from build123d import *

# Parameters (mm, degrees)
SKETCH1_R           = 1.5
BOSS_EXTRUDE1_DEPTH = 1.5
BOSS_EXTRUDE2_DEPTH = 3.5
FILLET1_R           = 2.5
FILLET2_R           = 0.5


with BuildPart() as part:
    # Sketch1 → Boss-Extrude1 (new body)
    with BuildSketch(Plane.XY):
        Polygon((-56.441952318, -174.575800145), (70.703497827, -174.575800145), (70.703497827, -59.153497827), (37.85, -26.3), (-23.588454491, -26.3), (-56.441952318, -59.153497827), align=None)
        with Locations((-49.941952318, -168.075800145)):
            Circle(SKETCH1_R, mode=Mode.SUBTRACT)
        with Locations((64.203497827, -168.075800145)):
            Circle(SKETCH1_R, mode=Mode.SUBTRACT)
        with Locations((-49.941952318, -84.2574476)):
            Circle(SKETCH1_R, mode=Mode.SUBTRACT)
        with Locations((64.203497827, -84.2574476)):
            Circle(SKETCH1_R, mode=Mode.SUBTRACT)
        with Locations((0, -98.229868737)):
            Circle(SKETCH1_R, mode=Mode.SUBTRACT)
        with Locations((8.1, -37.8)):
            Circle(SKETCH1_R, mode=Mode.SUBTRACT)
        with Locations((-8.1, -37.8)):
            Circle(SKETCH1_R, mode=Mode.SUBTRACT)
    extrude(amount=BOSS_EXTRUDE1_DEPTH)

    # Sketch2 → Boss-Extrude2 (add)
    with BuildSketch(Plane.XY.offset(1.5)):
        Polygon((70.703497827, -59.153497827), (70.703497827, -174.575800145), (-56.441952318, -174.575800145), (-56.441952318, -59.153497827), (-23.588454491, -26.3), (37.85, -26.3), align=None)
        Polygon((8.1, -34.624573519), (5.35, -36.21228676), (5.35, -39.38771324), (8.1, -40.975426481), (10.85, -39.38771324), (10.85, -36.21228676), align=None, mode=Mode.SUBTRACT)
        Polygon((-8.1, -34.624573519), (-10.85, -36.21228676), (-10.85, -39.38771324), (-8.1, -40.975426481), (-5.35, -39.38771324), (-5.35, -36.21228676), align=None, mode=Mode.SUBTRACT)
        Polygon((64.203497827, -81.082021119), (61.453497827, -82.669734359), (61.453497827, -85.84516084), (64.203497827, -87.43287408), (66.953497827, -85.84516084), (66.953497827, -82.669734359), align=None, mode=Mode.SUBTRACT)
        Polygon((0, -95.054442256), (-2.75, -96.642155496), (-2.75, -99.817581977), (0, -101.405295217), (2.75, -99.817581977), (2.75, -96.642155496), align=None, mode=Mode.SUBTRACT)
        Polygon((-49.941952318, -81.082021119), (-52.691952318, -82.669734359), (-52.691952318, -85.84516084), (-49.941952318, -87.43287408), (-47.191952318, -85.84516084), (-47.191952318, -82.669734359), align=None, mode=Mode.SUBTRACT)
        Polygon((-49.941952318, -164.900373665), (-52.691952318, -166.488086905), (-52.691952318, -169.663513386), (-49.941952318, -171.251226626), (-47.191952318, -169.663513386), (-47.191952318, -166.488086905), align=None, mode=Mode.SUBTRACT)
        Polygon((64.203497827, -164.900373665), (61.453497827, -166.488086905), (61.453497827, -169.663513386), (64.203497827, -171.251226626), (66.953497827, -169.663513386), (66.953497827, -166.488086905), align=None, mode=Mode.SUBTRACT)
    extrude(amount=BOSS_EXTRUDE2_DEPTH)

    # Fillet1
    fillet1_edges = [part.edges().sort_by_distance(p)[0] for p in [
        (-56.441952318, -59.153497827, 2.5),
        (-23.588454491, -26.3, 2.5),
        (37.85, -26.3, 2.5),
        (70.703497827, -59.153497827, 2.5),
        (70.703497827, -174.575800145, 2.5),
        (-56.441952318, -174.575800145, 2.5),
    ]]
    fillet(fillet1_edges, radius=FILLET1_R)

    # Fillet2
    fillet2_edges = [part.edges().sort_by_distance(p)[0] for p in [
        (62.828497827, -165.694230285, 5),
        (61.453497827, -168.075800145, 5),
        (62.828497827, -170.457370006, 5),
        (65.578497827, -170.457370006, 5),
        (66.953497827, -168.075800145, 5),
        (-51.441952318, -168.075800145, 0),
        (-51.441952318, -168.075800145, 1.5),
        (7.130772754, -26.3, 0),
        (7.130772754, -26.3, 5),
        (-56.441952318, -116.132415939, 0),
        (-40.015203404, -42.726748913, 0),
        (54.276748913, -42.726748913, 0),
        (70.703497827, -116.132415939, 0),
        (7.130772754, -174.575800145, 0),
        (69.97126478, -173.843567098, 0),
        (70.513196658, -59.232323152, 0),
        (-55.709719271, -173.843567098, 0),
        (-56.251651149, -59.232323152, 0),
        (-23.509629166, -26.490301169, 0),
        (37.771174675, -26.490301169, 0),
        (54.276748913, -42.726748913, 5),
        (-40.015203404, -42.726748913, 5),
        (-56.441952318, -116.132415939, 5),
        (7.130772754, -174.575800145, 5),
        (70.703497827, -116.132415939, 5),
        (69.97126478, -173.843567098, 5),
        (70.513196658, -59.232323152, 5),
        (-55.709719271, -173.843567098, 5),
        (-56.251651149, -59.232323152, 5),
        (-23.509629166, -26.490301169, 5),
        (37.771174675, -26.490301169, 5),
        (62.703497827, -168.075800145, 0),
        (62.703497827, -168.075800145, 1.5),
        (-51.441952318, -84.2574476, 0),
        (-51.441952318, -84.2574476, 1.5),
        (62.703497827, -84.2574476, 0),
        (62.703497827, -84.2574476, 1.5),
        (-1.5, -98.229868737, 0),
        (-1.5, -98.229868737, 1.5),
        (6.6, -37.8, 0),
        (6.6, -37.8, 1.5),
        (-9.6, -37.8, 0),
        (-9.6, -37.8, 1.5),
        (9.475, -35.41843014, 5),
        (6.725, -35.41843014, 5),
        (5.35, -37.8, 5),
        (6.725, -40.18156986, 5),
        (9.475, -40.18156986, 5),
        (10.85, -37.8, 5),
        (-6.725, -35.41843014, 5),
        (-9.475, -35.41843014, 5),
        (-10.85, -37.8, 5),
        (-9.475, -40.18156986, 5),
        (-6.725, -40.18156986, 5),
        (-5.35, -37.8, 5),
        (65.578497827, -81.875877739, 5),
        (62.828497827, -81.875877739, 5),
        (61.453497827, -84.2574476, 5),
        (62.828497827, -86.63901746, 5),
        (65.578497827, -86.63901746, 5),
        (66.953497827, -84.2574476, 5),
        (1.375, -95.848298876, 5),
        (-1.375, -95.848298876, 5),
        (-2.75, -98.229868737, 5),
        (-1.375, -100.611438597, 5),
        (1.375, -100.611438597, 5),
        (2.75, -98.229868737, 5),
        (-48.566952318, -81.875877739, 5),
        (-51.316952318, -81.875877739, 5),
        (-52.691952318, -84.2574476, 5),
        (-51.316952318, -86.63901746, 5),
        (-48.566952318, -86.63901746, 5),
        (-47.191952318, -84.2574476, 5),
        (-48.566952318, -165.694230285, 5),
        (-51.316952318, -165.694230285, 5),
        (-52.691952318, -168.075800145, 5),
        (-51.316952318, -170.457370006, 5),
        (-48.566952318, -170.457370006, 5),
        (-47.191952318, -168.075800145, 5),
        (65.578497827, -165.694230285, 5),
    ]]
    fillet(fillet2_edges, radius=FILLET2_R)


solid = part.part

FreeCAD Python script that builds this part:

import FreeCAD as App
import Part
import Sketcher
from FreeCAD import Vector
Q = App.Units.Quantity


def edges_at(feature, points):
    """Names of the edges that pass closest to the given points."""
    edges = feature.Shape.Edges
    near = lambda p: min(range(len(edges)), key=lambda i: edges[i].distToShape(Part.Vertex(*p))[0])
    return sorted({f"Edge{near(p) + 1}" for p in points})

doc = App.newDocument("Part")
body = doc.addObject("PartDesign::Body", "Body")

sketch1 = body.newObject("Sketcher::SketchObject", "Sketch")
sketch1.AttachmentSupport = (doc.getObject("XY_Plane"), [""])
sketch1.MapMode = "FlatFace"
sketch1.addGeometry(Part.LineSegment(Vector(-56.4, -174.6, 0), Vector(70.7, -174.6, 0)), False)
sketch1.addGeometry(Part.LineSegment(Vector(70.7, -174.6, 0), Vector(70.7, -59.2, 0)), False)
sketch1.addGeometry(Part.LineSegment(Vector(70.7, -59.2, 0), Vector(37.9, -26.3, 0)), False)
sketch1.addGeometry(Part.LineSegment(Vector(37.9, -26.3, 0), Vector(-23.6, -26.3, 0)), False)
sketch1.addGeometry(Part.LineSegment(Vector(-23.6, -26.3, 0), Vector(-56.4, -59.2, 0)), False)
sketch1.addGeometry(Part.LineSegment(Vector(-56.4, -59.2, 0), Vector(-56.4, -174.6, 0)), False)
sketch1.addGeometry(Part.Circle(Vector(-49.9, -168.1, 0), Vector(0, 0, 1), 1.5), False)
sketch1.addGeometry(Part.Circle(Vector(64.2, -168.1, 0), Vector(0, 0, 1), 1.5), False)
sketch1.addGeometry(Part.Circle(Vector(-49.9, -84.3, 0), Vector(0, 0, 1), 1.5), False)
sketch1.addGeometry(Part.Circle(Vector(0, -98.2, 0), Vector(0, 0, 1), 1.5), False)
sketch1.addGeometry(Part.Circle(Vector(-8.1, -37.8, 0), Vector(0, 0, 1), 1.5), False)
sketch1.addGeometry(Part.Circle(Vector(64.2, -84.3, 0), Vector(0, 0, 1), 1.5), False)
sketch1.addGeometry(Part.Circle(Vector(8.1, -37.8, 0), Vector(0, 0, 1), 1.5), False)
sketch1.addConstraint(Sketcher.Constraint("Coincident", 0, 2, 1, 1))
sketch1.addConstraint(Sketcher.Constraint("Coincident", 1, 2, 2, 1))
sketch1.addConstraint(Sketcher.Constraint("Coincident", 2, 2, 3, 1))
sketch1.addConstraint(Sketcher.Constraint("Coincident", 3, 2, 4, 1))
sketch1.addConstraint(Sketcher.Constraint("Coincident", 4, 2, 5, 1))
sketch1.addConstraint(Sketcher.Constraint("Coincident", 5, 2, 0, 1))
sketch1.addConstraint(Sketcher.Constraint("Horizontal", 0))
sketch1.addConstraint(Sketcher.Constraint("Vertical", 1))
sketch1.addConstraint(Sketcher.Constraint("Horizontal", 3))
sketch1.addConstraint(Sketcher.Constraint("Vertical", 5))
sketch1.addConstraint(Sketcher.Constraint("Equal", 6, 7))
sketch1.addConstraint(Sketcher.Constraint("Equal", 7, 8))
sketch1.addConstraint(Sketcher.Constraint("Equal", 8, 9))
sketch1.addConstraint(Sketcher.Constraint("Equal", 9, 10))
sketch1.addConstraint(Sketcher.Constraint("Equal", 10, 11))
sketch1.addConstraint(Sketcher.Constraint("Equal", 11, 12))
sketch1.addConstraint(Sketcher.Constraint("Symmetric", 10, 3, 12, 3, -2))
sketch1.addConstraint(Sketcher.Constraint("PointOnObject", 9, 3, -2))
sketch1.addConstraint(Sketcher.Constraint("Perpendicular", 2, 4))
sketch1.addConstraint(Sketcher.Constraint("Horizontal", 6, 3, 7, 3))
sketch1.addConstraint(Sketcher.Constraint("Horizontal", 8, 3, 11, 3))
sketch1.addConstraint(Sketcher.Constraint("Horizontal", 1, 2, 4, 2))
sketch1.addConstraint(Sketcher.Constraint("Vertical", 6, 3, 8, 3))
sketch1.addConstraint(Sketcher.Constraint("Vertical", 7, 3, 11, 3))
sketch1.addConstraint(Sketcher.Constraint("Equal", 2, 4))
sketch1.addConstraint(Sketcher.Constraint("Diameter", 6, Q("3 mm")))
sketch1.addConstraint(Sketcher.Constraint("DistanceX", 10, 3, -1, 1, Q("8.1 mm")))
sketch1.addConstraint(Sketcher.Constraint("DistanceY", 10, 3, -1, 1, Q("37.8 mm")))
sketch1.addConstraint(Sketcher.Constraint("DistanceY", 2, 2, -1, 1, Q("26.3 mm")))
sketch1.addConstraint(Sketcher.Constraint("DistanceX", 7, 3, 0, 2, Q("6.5 mm")))
sketch1.addConstraint(Sketcher.Constraint("DistanceY", 0, 2, 7, 3, Q("6.5 mm")))
sketch1.addConstraint(Sketcher.Constraint("DistanceX", 4, 2, 8, 3, Q("6.5 mm")))
sketch1.addConstraint(Sketcher.Constraint("DistanceX", -1, 1, 2, 2, Q("37.85 mm")))
sketch1.addConstraint(Sketcher.Constraint("DistanceX", 0, 1, 0, 2, Q("127.14545 mm")))
sketch1.addConstraint(Sketcher.Constraint("DistanceY", 6, 3, -1, 1, Q("168.0758 mm")))
sketch1.addConstraint(Sketcher.Constraint("DistanceX", 3, 2, 3, 1, Q("61.438454 mm")))
sketch1.addConstraint(Sketcher.Constraint("DistanceY", 9, 3, -1, 1, Q("98.229869 mm")))
sketch1.addConstraint(Sketcher.Constraint("DistanceY", 9, 3, 8, 3, Q("13.972421 mm")))
pad1 = body.newObject("PartDesign::Pad", "Pad")
pad1.Profile = sketch1
pad1.Length = 1.5

sketch2 = body.newObject("Sketcher::SketchObject", "Sketch001")
sketch2.AttachmentSupport = (doc.getObject("XY_Plane"), [""])
sketch2.MapMode = "FlatFace"
sketch2.AttachmentOffset = App.Placement(Vector(0, 0, 1.5), App.Rotation())
sketch2.addGeometry(Part.LineSegment(Vector(70.7, -174.6, 0), Vector(70.7, -59.2, 0)), False)
sketch2.addGeometry(Part.LineSegment(Vector(70.7, -59.2, 0), Vector(37.9, -26.3, 0)), False)
sketch2.addGeometry(Part.LineSegment(Vector(37.9, -26.3, 0), Vector(-23.6, -26.3, 0)), False)
sketch2.addGeometry(Part.LineSegment(Vector(-23.6, -26.3, 0), Vector(-56.4, -59.2, 0)), False)
sketch2.addGeometry(Part.LineSegment(Vector(-56.4, -59.2, 0), Vector(-56.4, -174.6, 0)), False)
sketch2.addGeometry(Part.LineSegment(Vector(-56.4, -174.6, 0), Vector(70.7, -174.6, 0)), False)
sketch2.addGeometry(Part.LineSegment(Vector(64.2, -164.9, 0), Vector(67, -166.5, 0)), False)
sketch2.addGeometry(Part.LineSegment(Vector(67, -166.5, 0), Vector(67, -169.7, 0)), False)
sketch2.addGeometry(Part.LineSegment(Vector(67, -169.7, 0), Vector(64.2, -171.3, 0)), False)
sketch2.addGeometry(Part.LineSegment(Vector(64.2, -171.3, 0), Vector(61.5, -169.7, 0)), False)
sketch2.addGeometry(Part.LineSegment(Vector(61.5, -169.7, 0), Vector(61.5, -166.5, 0)), False)
sketch2.addGeometry(Part.LineSegment(Vector(61.5, -166.5, 0), Vector(64.2, -164.9, 0)), False)
sketch2.addGeometry(Part.LineSegment(Vector(-49.9, -164.9, 0), Vector(-47.2, -166.5, 0)), False)
sketch2.addGeometry(Part.LineSegment(Vector(-47.2, -166.5, 0), Vector(-47.2, -169.7, 0)), False)
sketch2.addGeometry(Part.LineSegment(Vector(-47.2, -169.7, 0), Vector(-49.9, -171.3, 0)), False)
sketch2.addGeometry(Part.LineSegment(Vector(-49.9, -171.3, 0), Vector(-52.7, -169.7, 0)), False)
sketch2.addGeometry(Part.LineSegment(Vector(-52.7, -169.7, 0), Vector(-52.7, -166.5, 0)), False)
sketch2.addGeometry(Part.LineSegment(Vector(-52.7, -166.5, 0), Vector(-49.9, -164.9, 0)), False)
sketch2.addGeometry(Part.LineSegment(Vector(64.2, -81.1, 0), Vector(67, -82.7, 0)), False)
sketch2.addGeometry(Part.LineSegment(Vector(67, -82.7, 0), Vector(67, -85.8, 0)), False)
sketch2.addGeometry(Part.LineSegment(Vector(67, -85.8, 0), Vector(64.2, -87.4, 0)), False)
sketch2.addGeometry(Part.LineSegment(Vector(64.2, -87.4, 0), Vector(61.5, -85.8, 0)), False)
sketch2.addGeometry(Part.LineSegment(Vector(61.5, -85.8, 0), Vector(61.5, -82.7, 0)), False)
sketch2.addGeometry(Part.LineSegment(Vector(61.5, -82.7, 0), Vector(64.2, -81.1, 0)), False)
sketch2.addGeometry(Part.LineSegment(Vector(8.1, -34.6, 0), Vector(10.8, -36.2, 0)), False)
sketch2.addGeometry(Part.LineSegment(Vector(10.8, -36.2, 0), Vector(10.8, -39.4, 0)), False)
sketch2.addGeometry(Part.LineSegment(Vector(10.8, -39.4, 0), Vector(8.1, -41, 0)), False)
sketch2.addGeometry(Part.LineSegment(Vector(8.1, -41, 0), Vector(5.3, -39.4, 0)), False)
sketch2.addGeometry(Part.LineSegment(Vector(5.3, -39.4, 0), Vector(5.3, -36.2, 0)), False)
sketch2.addGeometry(Part.LineSegment(Vector(5.3, -36.2, 0), Vector(8.1, -34.6, 0)), False)
sketch2.addGeometry(Part.LineSegment(Vector(0, -95.1, 0), Vector(2.8, -96.6, 0)), False)
sketch2.addGeometry(Part.LineSegment(Vector(2.8, -96.6, 0), Vector(2.8, -99.8, 0)), False)
sketch2.addGeometry(Part.LineSegment(Vector(2.8, -99.8, 0), Vector(0, -101.4, 0)), False)
sketch2.addGeometry(Part.LineSegment(Vector(0, -101.4, 0), Vector(-2.8, -99.8, 0)), False)
sketch2.addGeometry(Part.LineSegment(Vector(-2.8, -99.8, 0), Vector(-2.8, -96.6, 0)), False)
sketch2.addGeometry(Part.LineSegment(Vector(-2.8, -96.6, 0), Vector(0, -95.1, 0)), False)
sketch2.addGeometry(Part.LineSegment(Vector(-49.9, -81.1, 0), Vector(-47.2, -82.7, 0)), False)
sketch2.addGeometry(Part.LineSegment(Vector(-47.2, -82.7, 0), Vector(-47.2, -85.8, 0)), False)
sketch2.addGeometry(Part.LineSegment(Vector(-47.2, -85.8, 0), Vector(-49.9, -87.4, 0)), False)
sketch2.addGeometry(Part.LineSegment(Vector(-49.9, -87.4, 0), Vector(-52.7, -85.8, 0)), False)
sketch2.addGeometry(Part.LineSegment(Vector(-52.7, -85.8, 0), Vector(-52.7, -82.7, 0)), False)
sketch2.addGeometry(Part.LineSegment(Vector(-52.7, -82.7, 0), Vector(-49.9, -81.1, 0)), False)
sketch2.addGeometry(Part.LineSegment(Vector(-8.1, -34.6, 0), Vector(-5.3, -36.2, 0)), False)
sketch2.addGeometry(Part.LineSegment(Vector(-5.3, -36.2, 0), Vector(-5.3, -39.4, 0)), False)
sketch2.addGeometry(Part.LineSegment(Vector(-5.3, -39.4, 0), Vector(-8.1, -41, 0)), False)
sketch2.addGeometry(Part.LineSegment(Vector(-8.1, -41, 0), Vector(-10.8, -39.4, 0)), False)
sketch2.addGeometry(Part.LineSegment(Vector(-10.8, -39.4, 0), Vector(-10.8, -36.2, 0)), False)
sketch2.addGeometry(Part.LineSegment(Vector(-10.8, -36.2, 0), Vector(-8.1, -34.6, 0)), False)
sketch2.addConstraint(Sketcher.Constraint("Coincident", 0, 2, 1, 1))
sketch2.addConstraint(Sketcher.Constraint("Coincident", 1, 2, 2, 1))
sketch2.addConstraint(Sketcher.Constraint("Coincident", 2, 2, 3, 1))
sketch2.addConstraint(Sketcher.Constraint("Coincident", 3, 2, 4, 1))
sketch2.addConstraint(Sketcher.Constraint("Coincident", 4, 2, 5, 1))
sketch2.addConstraint(Sketcher.Constraint("Coincident", 5, 2, 0, 1))
sketch2.addConstraint(Sketcher.Constraint("Coincident", 6, 2, 7, 1))
sketch2.addConstraint(Sketcher.Constraint("Coincident", 7, 2, 8, 1))
sketch2.addConstraint(Sketcher.Constraint("Coincident", 8, 2, 9, 1))
sketch2.addConstraint(Sketcher.Constraint("Coincident", 9, 2, 10, 1))
sketch2.addConstraint(Sketcher.Constraint("Coincident", 10, 2, 11, 1))
sketch2.addConstraint(Sketcher.Constraint("Coincident", 11, 2, 6, 1))
sketch2.addConstraint(Sketcher.Constraint("Coincident", 12, 2, 13, 1))
sketch2.addConstraint(Sketcher.Constraint("Coincident", 13, 2, 14, 1))
sketch2.addConstraint(Sketcher.Constraint("Coincident", 14, 2, 15, 1))
sketch2.addConstraint(Sketcher.Constraint("Coincident", 15, 2, 16, 1))
sketch2.addConstraint(Sketcher.Constraint("Coincident", 16, 2, 17, 1))
sketch2.addConstraint(Sketcher.Constraint("Coincident", 17, 2, 12, 1))
sketch2.addConstraint(Sketcher.Constraint("Coincident", 18, 2, 19, 1))
sketch2.addConstraint(Sketcher.Constraint("Coincident", 19, 2, 20, 1))
sketch2.addConstraint(Sketcher.Constraint("Coincident", 20, 2, 21, 1))
sketch2.addConstraint(Sketcher.Constraint("Coincident", 21, 2, 22, 1))
sketch2.addConstraint(Sketcher.Constraint("Coincident", 22, 2, 23, 1))
sketch2.addConstraint(Sketcher.Constraint("Coincident", 23, 2, 18, 1))
sketch2.addConstraint(Sketcher.Constraint("Coincident", 24, 2, 25, 1))
sketch2.addConstraint(Sketcher.Constraint("Coincident", 25, 2, 26, 1))
sketch2.addConstraint(Sketcher.Constraint("Coincident", 26, 2, 27, 1))
sketch2.addConstraint(Sketcher.Constraint("Coincident", 27, 2, 28, 1))
sketch2.addConstraint(Sketcher.Constraint("Coincident", 28, 2, 29, 1))
sketch2.addConstraint(Sketcher.Constraint("Coincident", 29, 2, 24, 1))
sketch2.addConstraint(Sketcher.Constraint("Coincident", 30, 2, 31, 1))
sketch2.addConstraint(Sketcher.Constraint("Coincident", 31, 2, 32, 1))
sketch2.addConstraint(Sketcher.Constraint("Coincident", 32, 2, 33, 1))
sketch2.addConstraint(Sketcher.Constraint("Coincident", 33, 2, 34, 1))
sketch2.addConstraint(Sketcher.Constraint("Coincident", 34, 2, 35, 1))
sketch2.addConstraint(Sketcher.Constraint("Coincident", 35, 2, 30, 1))
sketch2.addConstraint(Sketcher.Constraint("Coincident", 36, 2, 37, 1))
sketch2.addConstraint(Sketcher.Constraint("Coincident", 37, 2, 38, 1))
sketch2.addConstraint(Sketcher.Constraint("Coincident", 38, 2, 39, 1))
sketch2.addConstraint(Sketcher.Constraint("Coincident", 39, 2, 40, 1))
sketch2.addConstraint(Sketcher.Constraint("Coincident", 40, 2, 41, 1))
sketch2.addConstraint(Sketcher.Constraint("Coincident", 41, 2, 36, 1))
sketch2.addConstraint(Sketcher.Constraint("Coincident", 42, 2, 43, 1))
sketch2.addConstraint(Sketcher.Constraint("Coincident", 43, 2, 44, 1))
sketch2.addConstraint(Sketcher.Constraint("Coincident", 44, 2, 45, 1))
sketch2.addConstraint(Sketcher.Constraint("Coincident", 45, 2, 46, 1))
sketch2.addConstraint(Sketcher.Constraint("Coincident", 46, 2, 47, 1))
sketch2.addConstraint(Sketcher.Constraint("Coincident", 47, 2, 42, 1))
sketch2.addConstraint(Sketcher.Constraint("Vertical", 0))
sketch2.addConstraint(Sketcher.Constraint("Horizontal", 2))
sketch2.addConstraint(Sketcher.Constraint("Vertical", 4))
sketch2.addConstraint(Sketcher.Constraint("Horizontal", 5))
sketch2.addConstraint(Sketcher.Constraint("Vertical", 7))
sketch2.addConstraint(Sketcher.Constraint("Vertical", 10))
sketch2.addConstraint(Sketcher.Constraint("Vertical", 13))
sketch2.addConstraint(Sketcher.Constraint("Vertical", 16))
sketch2.addConstraint(Sketcher.Constraint("Vertical", 19))
sketch2.addConstraint(Sketcher.Constraint("Vertical", 22))
sketch2.addConstraint(Sketcher.Constraint("Vertical", 25))
sketch2.addConstraint(Sketcher.Constraint("Vertical", 28))
sketch2.addConstraint(Sketcher.Constraint("Vertical", 31))
sketch2.addConstraint(Sketcher.Constraint("Vertical", 34))
sketch2.addConstraint(Sketcher.Constraint("Vertical", 37))
sketch2.addConstraint(Sketcher.Constraint("Vertical", 40))
sketch2.addConstraint(Sketcher.Constraint("Vertical", 43))
sketch2.addConstraint(Sketcher.Constraint("Vertical", 46))
sketch2.addConstraint(Sketcher.Constraint("Symmetric", 31, 2, 33, 2, -2))
sketch2.addConstraint(Sketcher.Constraint("Symmetric", 28, 2, 42, 2, -2))
sketch2.addConstraint(Sketcher.Constraint("Symmetric", 26, 2, 44, 2, -2))
sketch2.addConstraint(Sketcher.Constraint("Symmetric", 25, 2, 45, 2, -2))
sketch2.addConstraint(Sketcher.Constraint("Symmetric", 29, 2, 47, 2, -2))
sketch2.addConstraint(Sketcher.Constraint("PointOnObject", 32, 2, -2))
sketch2.addConstraint(Sketcher.Constraint("PointOnObject", 35, 2, -2))
sketch2.addConstraint(Sketcher.Constraint("Perpendicular", 1, 3))
sketch2.addConstraint(Sketcher.Constraint("Parallel", 6, 9))
sketch2.addConstraint(Sketcher.Constraint("Parallel", 8, 11))
sketch2.addConstraint(Sketcher.Constraint("Parallel", 9, 12))
sketch2.addConstraint(Sketcher.Constraint("Parallel", 11, 14))
sketch2.addConstraint(Sketcher.Constraint("Parallel", 12, 15))
sketch2.addConstraint(Sketcher.Constraint("Parallel", 14, 17))
sketch2.addConstraint(Sketcher.Constraint("Parallel", 15, 18))
sketch2.addConstraint(Sketcher.Constraint("Parallel", 17, 20))
sketch2.addConstraint(Sketcher.Constraint("Parallel", 18, 21))
sketch2.addConstraint(Sketcher.Constraint("Parallel", 20, 23))
sketch2.addConstraint(Sketcher.Constraint("Parallel", 21, 24))
sketch2.addConstraint(Sketcher.Constraint("Parallel", 23, 26))
sketch2.addConstraint(Sketcher.Constraint("Parallel", 24, 27))
sketch2.addConstraint(Sketcher.Constraint("Parallel", 26, 29))
sketch2.addConstraint(Sketcher.Constraint("Parallel", 27, 30))
sketch2.addConstraint(Sketcher.Constraint("Parallel", 29, 32))
sketch2.addConstraint(Sketcher.Constraint("Parallel", 30, 33))
sketch2.addConstraint(Sketcher.Constraint("Parallel", 32, 35))
sketch2.addConstraint(Sketcher.Constraint("Parallel", 33, 36))
sketch2.addConstraint(Sketcher.Constraint("Parallel", 35, 38))
sketch2.addConstraint(Sketcher.Constraint("Parallel", 36, 39))
sketch2.addConstraint(Sketcher.Constraint("Parallel", 38, 41))
sketch2.addConstraint(Sketcher.Constraint("Parallel", 41, 44))
sketch2.addConstraint(Sketcher.Constraint("Parallel", 44, 47))
sketch2.addConstraint(Sketcher.Constraint("Horizontal", 0, 2, 3, 2))
sketch2.addConstraint(Sketcher.Constraint("Horizontal", 7, 2, 9, 2))
sketch2.addConstraint(Sketcher.Constraint("Horizontal", 6, 2, 10, 2))
sketch2.addConstraint(Sketcher.Constraint("Horizontal", 10, 2, 12, 2))
sketch2.addConstraint(Sketcher.Constraint("Horizontal", 9, 2, 13, 2))
sketch2.addConstraint(Sketcher.Constraint("Horizontal", 8, 2, 14, 2))
sketch2.addConstraint(Sketcher.Constraint("Horizontal", 13, 2, 15, 2))
sketch2.addConstraint(Sketcher.Constraint("Horizontal", 12, 2, 16, 2))
sketch2.addConstraint(Sketcher.Constraint("Horizontal", 19, 2, 21, 2))
sketch2.addConstraint(Sketcher.Constraint("Horizontal", 18, 2, 22, 2))
sketch2.addConstraint(Sketcher.Constraint("Horizontal", 25, 2, 27, 2))
sketch2.addConstraint(Sketcher.Constraint("Horizontal", 24, 2, 28, 2))
sketch2.addConstraint(Sketcher.Constraint("Horizontal", 22, 2, 36, 2))
sketch2.addConstraint(Sketcher.Constraint("Horizontal", 21, 2, 37, 2))
sketch2.addConstraint(Sketcher.Constraint("Horizontal", 20, 2, 38, 2))
sketch2.addConstraint(Sketcher.Constraint("Horizontal", 37, 2, 39, 2))
sketch2.addConstraint(Sketcher.Constraint("Horizontal", 36, 2, 40, 2))
sketch2.addConstraint(Sketcher.Constraint("Vertical", 7, 2, 18, 2))
sketch2.addConstraint(Sketcher.Constraint("Vertical", 11, 2, 20, 2))
sketch2.addConstraint(Sketcher.Constraint("Vertical", 13, 2, 36, 2))
sketch2.addConstraint(Sketcher.Constraint("Equal", 16, 19))
sketch2.addConstraint(Sketcher.Constraint("Equal", 22, 25))
sketch2.addConstraint(Sketcher.Constraint("Equal", 28, 31))
sketch2.addConstraint(Sketcher.Constraint("Equal", 1, 3))
sketch2.addConstraint(Sketcher.Constraint("Equal", 23, 24))
sketch2.addConstraint(Sketcher.Constraint("Equal", 29, 30))
sketch2.addConstraint(Sketcher.Constraint("Angle", 6, Q("-30 deg")))
sketch2.addConstraint(Sketcher.Constraint("DistanceX", 24, 2, 1, 2, Q("27 mm")))
sketch2.addConstraint(Sketcher.Constraint("DistanceY", 1, 2, -1, 1, Q("26.3 mm")))
sketch2.addConstraint(Sketcher.Constraint("DistanceX", -1, 1, 26, 2, Q("8.1 mm")))
sketch2.addConstraint(Sketcher.Constraint("DistanceX", 8, 2, 5, 2, Q("6.5 mm")))
sketch2.addConstraint(Sketcher.Constraint("DistanceX", 9, 2, 7, 2, Q("5.5 mm")))
sketch2.addConstraint(Sketcher.Constraint("DistanceX", 4, 2, 14, 2, Q("6.5 mm")))
sketch2.addConstraint(Sketcher.Constraint("DistanceX", 5, 1, 5, 2, Q("127.14545 mm")))
sketch2.addConstraint(Sketcher.Constraint("DistanceY", 4, 2, -1, 1, Q("174.5758 mm")))
sketch2.addConstraint(Sketcher.Constraint("DistanceY", 11, 2, 20, 2, Q("77.4675 mm")))
sketch2.addConstraint(Sketcher.Constraint("DistanceX", 2, 2, 2, 1, Q("61.438454 mm")))
sketch2.addConstraint(Sketcher.Constraint("DistanceY", 7, 2, 7, 1, Q("3.175426 mm")))
sketch2.addConstraint(Sketcher.Constraint("DistanceY", 19, 2, -1, 1, Q("85.845161 mm")))
sketch2.addConstraint(Sketcher.Constraint("DistanceY", 31, 2, -1, 1, Q("99.817582 mm")))
sketch2.addConstraint(Sketcher.Constraint("DistanceY", 0, 2, 24, 2, Q("22.941211 mm")))
pad2 = body.newObject("PartDesign::Pad", "Pad001")
pad2.Profile = sketch2
pad2.Length = 3.5
doc.recompute()

fillet = body.newObject("PartDesign::Fillet", "Fillet")
fillet.Base = (pad2, edges_at(pad2, [
    (-56.442, -59.153, 2.5),
    (-23.588, -26.3, 2.5),
    (37.85, -26.3, 2.5),
    (70.703, -59.153, 2.5),
    (70.703, -174.576, 2.5),
    (-56.442, -174.576, 2.5),
]))
fillet.Radius = 2.5
doc.recompute()

fillet2 = body.newObject("PartDesign::Fillet", "Fillet001")
fillet2.Base = (fillet, edges_at(fillet, [
    (62.828, -165.694, 5),
    (61.453, -168.076, 5),
    (62.828, -170.457, 5),
    (65.578, -170.457, 5),
    (66.953, -168.076, 5),
    (-51.442, -168.076, 0),
    (-51.442, -168.076, 1.5),
    (7.131, -26.3, 0),
    (7.131, -26.3, 5),
    (-56.442, -116.132, 0),
    (-40.015, -42.727, 0),
    (54.277, -42.727, 0),
    (70.703, -116.132, 0),
    (7.131, -174.576, 0),
    (69.971, -173.844, 0),
    (70.513, -59.232, 0),
    (-55.71, -173.844, 0),
    (-56.252, -59.232, 0),
    (-23.51, -26.49, 0),
    (37.771, -26.49, 0),
    (54.277, -42.727, 5),
    (-40.015, -42.727, 5),
    (-56.442, -116.132, 5),
    (7.131, -174.576, 5),
    (70.703, -116.132, 5),
    (69.971, -173.844, 5),
    (70.513, -59.232, 5),
    (-55.71, -173.844, 5),
    (-56.252, -59.232, 5),
    (-23.51, -26.49, 5),
    (37.771, -26.49, 5),
    (62.703, -168.076, 0),
    (62.703, -168.076, 1.5),
    (-51.442, -84.257, 0),
    (-51.442, -84.257, 1.5),
    (62.703, -84.257, 0),
    (62.703, -84.257, 1.5),
    (-1.5, -98.23, 0),
    (-1.5, -98.23, 1.5),
    (6.6, -37.8, 0),
    (6.6, -37.8, 1.5),
    (-9.6, -37.8, 0),
    (-9.6, -37.8, 1.5),
    (9.475, -35.418, 5),
    (6.725, -35.418, 5),
    (5.35, -37.8, 5),
    (6.725, -40.182, 5),
    (9.475, -40.182, 5),
    (10.85, -37.8, 5),
    (-6.725, -35.418, 5),
    (-9.475, -35.418, 5),
    (-10.85, -37.8, 5),
    (-9.475, -40.182, 5),
    (-6.725, -40.182, 5),
    (-5.35, -37.8, 5),
    (65.578, -81.876, 5),
    (62.828, -81.876, 5),
    (61.453, -84.257, 5),
    (62.828, -86.639, 5),
    (65.578, -86.639, 5),
    (66.953, -84.257, 5),
    (1.375, -95.848, 5),
    (-1.375, -95.848, 5),
    (-2.75, -98.23, 5),
    (-1.375, -100.611, 5),
    (1.375, -100.611, 5),
    (2.75, -98.23, 5),
    (-48.567, -81.876, 5),
    (-51.317, -81.876, 5),
    (-52.692, -84.257, 5),
    (-51.317, -86.639, 5),
    (-48.567, -86.639, 5),
    (-47.192, -84.257, 5),
    (-48.567, -165.694, 5),
    (-51.317, -165.694, 5),
    (-52.692, -168.076, 5),
    (-51.317, -170.457, 5),
    (-48.567, -170.457, 5),
    (-47.192, -168.076, 5),
    (65.578, -165.694, 5),
]))
fillet2.Radius = 0.5

doc.recompute()
